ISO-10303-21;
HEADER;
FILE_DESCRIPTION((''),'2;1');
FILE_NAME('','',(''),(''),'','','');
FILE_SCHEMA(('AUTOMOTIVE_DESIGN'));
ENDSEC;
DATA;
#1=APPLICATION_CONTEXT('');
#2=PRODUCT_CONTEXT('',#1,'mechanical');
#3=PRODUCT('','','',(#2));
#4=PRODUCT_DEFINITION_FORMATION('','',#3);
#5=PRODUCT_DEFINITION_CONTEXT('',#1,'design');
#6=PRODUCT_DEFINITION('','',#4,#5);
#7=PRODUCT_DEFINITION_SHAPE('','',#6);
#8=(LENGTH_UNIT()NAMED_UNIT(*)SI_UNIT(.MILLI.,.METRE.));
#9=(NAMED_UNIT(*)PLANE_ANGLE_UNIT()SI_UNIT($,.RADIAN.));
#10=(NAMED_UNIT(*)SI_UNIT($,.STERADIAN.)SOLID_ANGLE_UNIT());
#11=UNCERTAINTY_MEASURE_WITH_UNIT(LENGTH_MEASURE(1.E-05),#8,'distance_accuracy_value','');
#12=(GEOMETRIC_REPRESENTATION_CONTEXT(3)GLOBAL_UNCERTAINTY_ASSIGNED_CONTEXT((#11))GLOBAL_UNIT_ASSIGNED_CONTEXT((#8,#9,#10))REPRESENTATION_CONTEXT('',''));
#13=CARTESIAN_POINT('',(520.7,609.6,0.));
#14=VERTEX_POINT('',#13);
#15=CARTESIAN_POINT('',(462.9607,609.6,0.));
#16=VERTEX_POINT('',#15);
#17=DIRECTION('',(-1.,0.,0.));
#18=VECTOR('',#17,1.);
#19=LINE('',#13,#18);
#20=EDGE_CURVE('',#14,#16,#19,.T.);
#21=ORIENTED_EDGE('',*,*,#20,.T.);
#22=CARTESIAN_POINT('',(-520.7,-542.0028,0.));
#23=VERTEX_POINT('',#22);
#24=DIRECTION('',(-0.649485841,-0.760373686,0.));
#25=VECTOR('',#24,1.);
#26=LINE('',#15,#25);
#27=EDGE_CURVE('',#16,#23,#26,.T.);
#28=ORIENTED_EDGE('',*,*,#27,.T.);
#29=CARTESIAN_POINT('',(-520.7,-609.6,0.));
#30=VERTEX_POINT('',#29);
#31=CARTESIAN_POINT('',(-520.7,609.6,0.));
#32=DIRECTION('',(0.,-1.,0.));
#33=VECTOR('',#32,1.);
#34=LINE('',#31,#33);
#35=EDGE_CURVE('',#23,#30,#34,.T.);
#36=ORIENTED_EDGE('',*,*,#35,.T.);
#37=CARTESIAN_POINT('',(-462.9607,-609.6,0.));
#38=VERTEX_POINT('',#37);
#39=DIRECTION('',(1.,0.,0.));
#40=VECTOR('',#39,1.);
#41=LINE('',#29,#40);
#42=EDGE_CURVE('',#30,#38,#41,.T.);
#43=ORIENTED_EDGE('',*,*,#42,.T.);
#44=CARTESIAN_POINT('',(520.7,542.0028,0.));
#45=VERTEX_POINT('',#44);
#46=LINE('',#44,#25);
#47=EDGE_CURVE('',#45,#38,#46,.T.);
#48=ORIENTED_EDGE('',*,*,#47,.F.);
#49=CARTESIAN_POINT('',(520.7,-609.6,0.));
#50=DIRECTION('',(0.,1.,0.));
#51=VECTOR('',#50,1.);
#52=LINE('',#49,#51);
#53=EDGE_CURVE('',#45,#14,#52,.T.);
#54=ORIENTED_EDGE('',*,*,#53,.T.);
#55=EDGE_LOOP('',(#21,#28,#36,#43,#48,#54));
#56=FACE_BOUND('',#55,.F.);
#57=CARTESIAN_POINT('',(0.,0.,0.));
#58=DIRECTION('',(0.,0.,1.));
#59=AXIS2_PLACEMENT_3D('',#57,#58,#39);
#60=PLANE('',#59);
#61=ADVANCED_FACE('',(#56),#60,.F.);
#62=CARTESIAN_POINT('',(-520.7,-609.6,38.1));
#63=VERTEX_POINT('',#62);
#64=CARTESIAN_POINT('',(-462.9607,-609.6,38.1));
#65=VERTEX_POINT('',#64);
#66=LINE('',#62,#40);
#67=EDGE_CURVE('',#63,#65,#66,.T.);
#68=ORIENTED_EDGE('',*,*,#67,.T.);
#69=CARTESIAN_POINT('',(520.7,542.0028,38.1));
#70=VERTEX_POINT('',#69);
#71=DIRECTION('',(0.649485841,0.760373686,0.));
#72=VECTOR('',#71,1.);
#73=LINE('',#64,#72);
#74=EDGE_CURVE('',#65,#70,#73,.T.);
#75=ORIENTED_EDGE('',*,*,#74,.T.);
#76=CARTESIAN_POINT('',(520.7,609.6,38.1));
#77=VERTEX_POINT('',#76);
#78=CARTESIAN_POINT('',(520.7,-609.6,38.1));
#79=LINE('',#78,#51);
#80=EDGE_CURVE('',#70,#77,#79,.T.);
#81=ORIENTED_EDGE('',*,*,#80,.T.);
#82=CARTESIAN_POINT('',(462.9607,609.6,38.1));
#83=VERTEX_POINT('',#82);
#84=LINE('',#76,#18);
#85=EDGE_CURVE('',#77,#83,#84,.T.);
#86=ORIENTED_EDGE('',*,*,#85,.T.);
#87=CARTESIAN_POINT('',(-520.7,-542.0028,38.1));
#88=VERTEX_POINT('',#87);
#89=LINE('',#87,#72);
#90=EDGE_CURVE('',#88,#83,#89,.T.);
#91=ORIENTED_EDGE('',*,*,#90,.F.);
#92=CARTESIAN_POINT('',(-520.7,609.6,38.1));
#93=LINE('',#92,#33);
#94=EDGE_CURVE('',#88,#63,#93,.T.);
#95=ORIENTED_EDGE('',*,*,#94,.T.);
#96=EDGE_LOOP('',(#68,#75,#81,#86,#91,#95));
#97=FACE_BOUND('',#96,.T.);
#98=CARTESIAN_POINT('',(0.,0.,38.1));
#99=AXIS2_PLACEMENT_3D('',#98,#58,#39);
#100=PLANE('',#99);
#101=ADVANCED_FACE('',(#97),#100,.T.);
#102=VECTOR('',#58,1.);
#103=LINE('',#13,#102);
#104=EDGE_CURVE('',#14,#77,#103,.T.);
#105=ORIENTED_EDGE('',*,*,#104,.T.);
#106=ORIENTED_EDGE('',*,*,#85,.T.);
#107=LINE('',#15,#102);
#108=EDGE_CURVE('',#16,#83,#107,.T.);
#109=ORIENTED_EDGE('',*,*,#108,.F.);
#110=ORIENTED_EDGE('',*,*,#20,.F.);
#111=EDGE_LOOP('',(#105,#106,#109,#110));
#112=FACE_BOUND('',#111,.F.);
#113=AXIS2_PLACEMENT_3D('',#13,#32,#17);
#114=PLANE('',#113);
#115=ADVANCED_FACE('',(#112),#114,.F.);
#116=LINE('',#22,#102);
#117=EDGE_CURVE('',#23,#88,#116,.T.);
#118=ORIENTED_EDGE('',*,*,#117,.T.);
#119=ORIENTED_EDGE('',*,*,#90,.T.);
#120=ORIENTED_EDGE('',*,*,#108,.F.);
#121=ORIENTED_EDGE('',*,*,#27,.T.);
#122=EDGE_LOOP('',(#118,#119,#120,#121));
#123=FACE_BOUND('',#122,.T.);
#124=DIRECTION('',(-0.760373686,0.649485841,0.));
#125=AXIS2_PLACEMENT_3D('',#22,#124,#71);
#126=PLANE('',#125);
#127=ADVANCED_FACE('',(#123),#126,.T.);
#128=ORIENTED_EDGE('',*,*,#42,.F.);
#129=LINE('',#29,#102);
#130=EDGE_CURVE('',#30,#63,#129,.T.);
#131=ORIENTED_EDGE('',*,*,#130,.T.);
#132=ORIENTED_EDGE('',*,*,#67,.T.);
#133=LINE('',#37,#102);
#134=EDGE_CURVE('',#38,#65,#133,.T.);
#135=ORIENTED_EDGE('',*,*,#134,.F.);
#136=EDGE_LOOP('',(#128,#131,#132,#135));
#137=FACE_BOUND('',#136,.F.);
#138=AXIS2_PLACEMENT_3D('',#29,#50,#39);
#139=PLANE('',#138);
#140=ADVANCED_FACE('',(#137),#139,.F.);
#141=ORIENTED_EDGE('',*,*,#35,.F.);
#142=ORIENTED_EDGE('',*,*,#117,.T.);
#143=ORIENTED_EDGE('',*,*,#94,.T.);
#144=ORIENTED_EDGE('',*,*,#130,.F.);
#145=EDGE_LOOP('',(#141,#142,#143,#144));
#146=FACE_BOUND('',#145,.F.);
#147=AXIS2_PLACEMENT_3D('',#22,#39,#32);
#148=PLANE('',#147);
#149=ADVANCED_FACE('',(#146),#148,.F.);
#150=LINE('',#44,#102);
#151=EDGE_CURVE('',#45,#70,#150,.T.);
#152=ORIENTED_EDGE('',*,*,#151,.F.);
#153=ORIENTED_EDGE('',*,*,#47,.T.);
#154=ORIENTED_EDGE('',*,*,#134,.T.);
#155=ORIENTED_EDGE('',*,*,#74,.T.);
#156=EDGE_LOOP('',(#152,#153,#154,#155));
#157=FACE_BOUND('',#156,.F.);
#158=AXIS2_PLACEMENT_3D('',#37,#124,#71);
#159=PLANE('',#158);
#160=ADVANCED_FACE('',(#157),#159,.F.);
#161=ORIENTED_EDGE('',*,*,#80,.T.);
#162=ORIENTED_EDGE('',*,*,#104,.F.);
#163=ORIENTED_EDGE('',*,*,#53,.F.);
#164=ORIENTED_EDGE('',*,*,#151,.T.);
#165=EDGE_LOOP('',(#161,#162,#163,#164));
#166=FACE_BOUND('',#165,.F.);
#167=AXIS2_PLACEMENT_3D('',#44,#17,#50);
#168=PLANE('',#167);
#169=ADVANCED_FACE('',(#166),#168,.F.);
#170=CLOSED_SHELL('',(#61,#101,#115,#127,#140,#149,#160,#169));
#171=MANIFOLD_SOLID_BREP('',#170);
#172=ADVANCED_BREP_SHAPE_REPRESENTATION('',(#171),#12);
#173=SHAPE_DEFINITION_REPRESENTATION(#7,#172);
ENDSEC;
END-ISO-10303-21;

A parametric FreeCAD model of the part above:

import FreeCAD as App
import Part
import Sketcher

V = App.Vector
Q = App.Units.Quantity

doc = App.newDocument("Part")
params = doc.addObject("Spreadsheet::Sheet", "Params")
for row, (alias, value) in enumerate([
    ("pad1_length", "1.5 in"),
], start=1):
    params.set(f"A{row}", alias)
    params.set(f"B{row}", "=" + value)
    params.setAlias(f"B{row}", alias)

body = doc.addObject("PartDesign::Body", "Body")

sketch1 = body.newObject("Sketcher::SketchObject", "Sketch")
sketch1.AttachmentSupport = (doc.getObject("XY_Plane"), [""])
sketch1.MapMode = "FlatFace"
sketch1.addGeometry(Part.LineSegment(V(-520.7, -542.0028, 0), V(-520.7, -609.6, 0)), False)
sketch1.addGeometry(Part.LineSegment(V(-520.7, -609.6, 0), V(-462.9607, -609.6, 0)), False)
sketch1.addGeometry(Part.LineSegment(V(-462.9607, -609.6, 0), V(520.7, 542.0028, 0)), False)
sketch1.addGeometry(Part.LineSegment(V(520.7, 542.0028, 0), V(520.7, 609.6, 0)), False)
sketch1.addGeometry(Part.LineSegment(V(520.7, 609.6, 0), V(462.9607, 609.6, 0)), False)
sketch1.addGeometry(Part.LineSegment(V(462.9607, 609.6, 0), V(-520.7, -542.0028, 0)), False)
sketch1.addConstraint(Sketcher.Constraint("Coincident", 0, 2, 1, 1))
sketch1.addConstraint(Sketcher.Constraint("Coincident", 1, 2, 2, 1))
sketch1.addConstraint(Sketcher.Constraint("Coincident", 2, 2, 3, 1))
sketch1.addConstraint(Sketcher.Constraint("Coincident", 3, 2, 4, 1))
sketch1.addConstraint(Sketcher.Constraint("Coincident", 4, 2, 5, 1))
sketch1.addConstraint(Sketcher.Constraint("Coincident", 5, 2, 0, 1))
sketch1.addConstraint(Sketcher.Constraint("Vertical", 0))
sketch1.addConstraint(Sketcher.Constraint("Horizontal", 1))
sketch1.addConstraint(Sketcher.Constraint("Vertical", 3))
sketch1.addConstraint(Sketcher.Constraint("Horizontal", 4))
sketch1.addConstraint(Sketcher.Constraint("Symmetric", 0, 2, 3, 2, -1, 1))
sketch1.addConstraint(Sketcher.Constraint("Parallel", 2, 5))
sketch1.addConstraint(Sketcher.Constraint("Equal", 1, 4))
sketch1.addConstraint(Sketcher.Constraint("DistanceX", 0, 2, 2, 2, Q("41 in")))
sketch1.addConstraint(Sketcher.Constraint("DistanceY", 1, 2, 3, 2, Q("48 in")))
sketch1.addConstraint(Sketcher.Constraint("DistanceX", 1, 1, 1, 2, Q("2.2732 in")))
sketch1.addConstraint(Sketcher.Constraint("DistanceY", 0, 2, 0, 1, Q("2.6613 in")))
pad1 = body.newObject("PartDesign::Pad", "Pad")
pad1.Profile = sketch1
pad1.setExpression("Length", "Params.pad1_length")

doc.recompute()
